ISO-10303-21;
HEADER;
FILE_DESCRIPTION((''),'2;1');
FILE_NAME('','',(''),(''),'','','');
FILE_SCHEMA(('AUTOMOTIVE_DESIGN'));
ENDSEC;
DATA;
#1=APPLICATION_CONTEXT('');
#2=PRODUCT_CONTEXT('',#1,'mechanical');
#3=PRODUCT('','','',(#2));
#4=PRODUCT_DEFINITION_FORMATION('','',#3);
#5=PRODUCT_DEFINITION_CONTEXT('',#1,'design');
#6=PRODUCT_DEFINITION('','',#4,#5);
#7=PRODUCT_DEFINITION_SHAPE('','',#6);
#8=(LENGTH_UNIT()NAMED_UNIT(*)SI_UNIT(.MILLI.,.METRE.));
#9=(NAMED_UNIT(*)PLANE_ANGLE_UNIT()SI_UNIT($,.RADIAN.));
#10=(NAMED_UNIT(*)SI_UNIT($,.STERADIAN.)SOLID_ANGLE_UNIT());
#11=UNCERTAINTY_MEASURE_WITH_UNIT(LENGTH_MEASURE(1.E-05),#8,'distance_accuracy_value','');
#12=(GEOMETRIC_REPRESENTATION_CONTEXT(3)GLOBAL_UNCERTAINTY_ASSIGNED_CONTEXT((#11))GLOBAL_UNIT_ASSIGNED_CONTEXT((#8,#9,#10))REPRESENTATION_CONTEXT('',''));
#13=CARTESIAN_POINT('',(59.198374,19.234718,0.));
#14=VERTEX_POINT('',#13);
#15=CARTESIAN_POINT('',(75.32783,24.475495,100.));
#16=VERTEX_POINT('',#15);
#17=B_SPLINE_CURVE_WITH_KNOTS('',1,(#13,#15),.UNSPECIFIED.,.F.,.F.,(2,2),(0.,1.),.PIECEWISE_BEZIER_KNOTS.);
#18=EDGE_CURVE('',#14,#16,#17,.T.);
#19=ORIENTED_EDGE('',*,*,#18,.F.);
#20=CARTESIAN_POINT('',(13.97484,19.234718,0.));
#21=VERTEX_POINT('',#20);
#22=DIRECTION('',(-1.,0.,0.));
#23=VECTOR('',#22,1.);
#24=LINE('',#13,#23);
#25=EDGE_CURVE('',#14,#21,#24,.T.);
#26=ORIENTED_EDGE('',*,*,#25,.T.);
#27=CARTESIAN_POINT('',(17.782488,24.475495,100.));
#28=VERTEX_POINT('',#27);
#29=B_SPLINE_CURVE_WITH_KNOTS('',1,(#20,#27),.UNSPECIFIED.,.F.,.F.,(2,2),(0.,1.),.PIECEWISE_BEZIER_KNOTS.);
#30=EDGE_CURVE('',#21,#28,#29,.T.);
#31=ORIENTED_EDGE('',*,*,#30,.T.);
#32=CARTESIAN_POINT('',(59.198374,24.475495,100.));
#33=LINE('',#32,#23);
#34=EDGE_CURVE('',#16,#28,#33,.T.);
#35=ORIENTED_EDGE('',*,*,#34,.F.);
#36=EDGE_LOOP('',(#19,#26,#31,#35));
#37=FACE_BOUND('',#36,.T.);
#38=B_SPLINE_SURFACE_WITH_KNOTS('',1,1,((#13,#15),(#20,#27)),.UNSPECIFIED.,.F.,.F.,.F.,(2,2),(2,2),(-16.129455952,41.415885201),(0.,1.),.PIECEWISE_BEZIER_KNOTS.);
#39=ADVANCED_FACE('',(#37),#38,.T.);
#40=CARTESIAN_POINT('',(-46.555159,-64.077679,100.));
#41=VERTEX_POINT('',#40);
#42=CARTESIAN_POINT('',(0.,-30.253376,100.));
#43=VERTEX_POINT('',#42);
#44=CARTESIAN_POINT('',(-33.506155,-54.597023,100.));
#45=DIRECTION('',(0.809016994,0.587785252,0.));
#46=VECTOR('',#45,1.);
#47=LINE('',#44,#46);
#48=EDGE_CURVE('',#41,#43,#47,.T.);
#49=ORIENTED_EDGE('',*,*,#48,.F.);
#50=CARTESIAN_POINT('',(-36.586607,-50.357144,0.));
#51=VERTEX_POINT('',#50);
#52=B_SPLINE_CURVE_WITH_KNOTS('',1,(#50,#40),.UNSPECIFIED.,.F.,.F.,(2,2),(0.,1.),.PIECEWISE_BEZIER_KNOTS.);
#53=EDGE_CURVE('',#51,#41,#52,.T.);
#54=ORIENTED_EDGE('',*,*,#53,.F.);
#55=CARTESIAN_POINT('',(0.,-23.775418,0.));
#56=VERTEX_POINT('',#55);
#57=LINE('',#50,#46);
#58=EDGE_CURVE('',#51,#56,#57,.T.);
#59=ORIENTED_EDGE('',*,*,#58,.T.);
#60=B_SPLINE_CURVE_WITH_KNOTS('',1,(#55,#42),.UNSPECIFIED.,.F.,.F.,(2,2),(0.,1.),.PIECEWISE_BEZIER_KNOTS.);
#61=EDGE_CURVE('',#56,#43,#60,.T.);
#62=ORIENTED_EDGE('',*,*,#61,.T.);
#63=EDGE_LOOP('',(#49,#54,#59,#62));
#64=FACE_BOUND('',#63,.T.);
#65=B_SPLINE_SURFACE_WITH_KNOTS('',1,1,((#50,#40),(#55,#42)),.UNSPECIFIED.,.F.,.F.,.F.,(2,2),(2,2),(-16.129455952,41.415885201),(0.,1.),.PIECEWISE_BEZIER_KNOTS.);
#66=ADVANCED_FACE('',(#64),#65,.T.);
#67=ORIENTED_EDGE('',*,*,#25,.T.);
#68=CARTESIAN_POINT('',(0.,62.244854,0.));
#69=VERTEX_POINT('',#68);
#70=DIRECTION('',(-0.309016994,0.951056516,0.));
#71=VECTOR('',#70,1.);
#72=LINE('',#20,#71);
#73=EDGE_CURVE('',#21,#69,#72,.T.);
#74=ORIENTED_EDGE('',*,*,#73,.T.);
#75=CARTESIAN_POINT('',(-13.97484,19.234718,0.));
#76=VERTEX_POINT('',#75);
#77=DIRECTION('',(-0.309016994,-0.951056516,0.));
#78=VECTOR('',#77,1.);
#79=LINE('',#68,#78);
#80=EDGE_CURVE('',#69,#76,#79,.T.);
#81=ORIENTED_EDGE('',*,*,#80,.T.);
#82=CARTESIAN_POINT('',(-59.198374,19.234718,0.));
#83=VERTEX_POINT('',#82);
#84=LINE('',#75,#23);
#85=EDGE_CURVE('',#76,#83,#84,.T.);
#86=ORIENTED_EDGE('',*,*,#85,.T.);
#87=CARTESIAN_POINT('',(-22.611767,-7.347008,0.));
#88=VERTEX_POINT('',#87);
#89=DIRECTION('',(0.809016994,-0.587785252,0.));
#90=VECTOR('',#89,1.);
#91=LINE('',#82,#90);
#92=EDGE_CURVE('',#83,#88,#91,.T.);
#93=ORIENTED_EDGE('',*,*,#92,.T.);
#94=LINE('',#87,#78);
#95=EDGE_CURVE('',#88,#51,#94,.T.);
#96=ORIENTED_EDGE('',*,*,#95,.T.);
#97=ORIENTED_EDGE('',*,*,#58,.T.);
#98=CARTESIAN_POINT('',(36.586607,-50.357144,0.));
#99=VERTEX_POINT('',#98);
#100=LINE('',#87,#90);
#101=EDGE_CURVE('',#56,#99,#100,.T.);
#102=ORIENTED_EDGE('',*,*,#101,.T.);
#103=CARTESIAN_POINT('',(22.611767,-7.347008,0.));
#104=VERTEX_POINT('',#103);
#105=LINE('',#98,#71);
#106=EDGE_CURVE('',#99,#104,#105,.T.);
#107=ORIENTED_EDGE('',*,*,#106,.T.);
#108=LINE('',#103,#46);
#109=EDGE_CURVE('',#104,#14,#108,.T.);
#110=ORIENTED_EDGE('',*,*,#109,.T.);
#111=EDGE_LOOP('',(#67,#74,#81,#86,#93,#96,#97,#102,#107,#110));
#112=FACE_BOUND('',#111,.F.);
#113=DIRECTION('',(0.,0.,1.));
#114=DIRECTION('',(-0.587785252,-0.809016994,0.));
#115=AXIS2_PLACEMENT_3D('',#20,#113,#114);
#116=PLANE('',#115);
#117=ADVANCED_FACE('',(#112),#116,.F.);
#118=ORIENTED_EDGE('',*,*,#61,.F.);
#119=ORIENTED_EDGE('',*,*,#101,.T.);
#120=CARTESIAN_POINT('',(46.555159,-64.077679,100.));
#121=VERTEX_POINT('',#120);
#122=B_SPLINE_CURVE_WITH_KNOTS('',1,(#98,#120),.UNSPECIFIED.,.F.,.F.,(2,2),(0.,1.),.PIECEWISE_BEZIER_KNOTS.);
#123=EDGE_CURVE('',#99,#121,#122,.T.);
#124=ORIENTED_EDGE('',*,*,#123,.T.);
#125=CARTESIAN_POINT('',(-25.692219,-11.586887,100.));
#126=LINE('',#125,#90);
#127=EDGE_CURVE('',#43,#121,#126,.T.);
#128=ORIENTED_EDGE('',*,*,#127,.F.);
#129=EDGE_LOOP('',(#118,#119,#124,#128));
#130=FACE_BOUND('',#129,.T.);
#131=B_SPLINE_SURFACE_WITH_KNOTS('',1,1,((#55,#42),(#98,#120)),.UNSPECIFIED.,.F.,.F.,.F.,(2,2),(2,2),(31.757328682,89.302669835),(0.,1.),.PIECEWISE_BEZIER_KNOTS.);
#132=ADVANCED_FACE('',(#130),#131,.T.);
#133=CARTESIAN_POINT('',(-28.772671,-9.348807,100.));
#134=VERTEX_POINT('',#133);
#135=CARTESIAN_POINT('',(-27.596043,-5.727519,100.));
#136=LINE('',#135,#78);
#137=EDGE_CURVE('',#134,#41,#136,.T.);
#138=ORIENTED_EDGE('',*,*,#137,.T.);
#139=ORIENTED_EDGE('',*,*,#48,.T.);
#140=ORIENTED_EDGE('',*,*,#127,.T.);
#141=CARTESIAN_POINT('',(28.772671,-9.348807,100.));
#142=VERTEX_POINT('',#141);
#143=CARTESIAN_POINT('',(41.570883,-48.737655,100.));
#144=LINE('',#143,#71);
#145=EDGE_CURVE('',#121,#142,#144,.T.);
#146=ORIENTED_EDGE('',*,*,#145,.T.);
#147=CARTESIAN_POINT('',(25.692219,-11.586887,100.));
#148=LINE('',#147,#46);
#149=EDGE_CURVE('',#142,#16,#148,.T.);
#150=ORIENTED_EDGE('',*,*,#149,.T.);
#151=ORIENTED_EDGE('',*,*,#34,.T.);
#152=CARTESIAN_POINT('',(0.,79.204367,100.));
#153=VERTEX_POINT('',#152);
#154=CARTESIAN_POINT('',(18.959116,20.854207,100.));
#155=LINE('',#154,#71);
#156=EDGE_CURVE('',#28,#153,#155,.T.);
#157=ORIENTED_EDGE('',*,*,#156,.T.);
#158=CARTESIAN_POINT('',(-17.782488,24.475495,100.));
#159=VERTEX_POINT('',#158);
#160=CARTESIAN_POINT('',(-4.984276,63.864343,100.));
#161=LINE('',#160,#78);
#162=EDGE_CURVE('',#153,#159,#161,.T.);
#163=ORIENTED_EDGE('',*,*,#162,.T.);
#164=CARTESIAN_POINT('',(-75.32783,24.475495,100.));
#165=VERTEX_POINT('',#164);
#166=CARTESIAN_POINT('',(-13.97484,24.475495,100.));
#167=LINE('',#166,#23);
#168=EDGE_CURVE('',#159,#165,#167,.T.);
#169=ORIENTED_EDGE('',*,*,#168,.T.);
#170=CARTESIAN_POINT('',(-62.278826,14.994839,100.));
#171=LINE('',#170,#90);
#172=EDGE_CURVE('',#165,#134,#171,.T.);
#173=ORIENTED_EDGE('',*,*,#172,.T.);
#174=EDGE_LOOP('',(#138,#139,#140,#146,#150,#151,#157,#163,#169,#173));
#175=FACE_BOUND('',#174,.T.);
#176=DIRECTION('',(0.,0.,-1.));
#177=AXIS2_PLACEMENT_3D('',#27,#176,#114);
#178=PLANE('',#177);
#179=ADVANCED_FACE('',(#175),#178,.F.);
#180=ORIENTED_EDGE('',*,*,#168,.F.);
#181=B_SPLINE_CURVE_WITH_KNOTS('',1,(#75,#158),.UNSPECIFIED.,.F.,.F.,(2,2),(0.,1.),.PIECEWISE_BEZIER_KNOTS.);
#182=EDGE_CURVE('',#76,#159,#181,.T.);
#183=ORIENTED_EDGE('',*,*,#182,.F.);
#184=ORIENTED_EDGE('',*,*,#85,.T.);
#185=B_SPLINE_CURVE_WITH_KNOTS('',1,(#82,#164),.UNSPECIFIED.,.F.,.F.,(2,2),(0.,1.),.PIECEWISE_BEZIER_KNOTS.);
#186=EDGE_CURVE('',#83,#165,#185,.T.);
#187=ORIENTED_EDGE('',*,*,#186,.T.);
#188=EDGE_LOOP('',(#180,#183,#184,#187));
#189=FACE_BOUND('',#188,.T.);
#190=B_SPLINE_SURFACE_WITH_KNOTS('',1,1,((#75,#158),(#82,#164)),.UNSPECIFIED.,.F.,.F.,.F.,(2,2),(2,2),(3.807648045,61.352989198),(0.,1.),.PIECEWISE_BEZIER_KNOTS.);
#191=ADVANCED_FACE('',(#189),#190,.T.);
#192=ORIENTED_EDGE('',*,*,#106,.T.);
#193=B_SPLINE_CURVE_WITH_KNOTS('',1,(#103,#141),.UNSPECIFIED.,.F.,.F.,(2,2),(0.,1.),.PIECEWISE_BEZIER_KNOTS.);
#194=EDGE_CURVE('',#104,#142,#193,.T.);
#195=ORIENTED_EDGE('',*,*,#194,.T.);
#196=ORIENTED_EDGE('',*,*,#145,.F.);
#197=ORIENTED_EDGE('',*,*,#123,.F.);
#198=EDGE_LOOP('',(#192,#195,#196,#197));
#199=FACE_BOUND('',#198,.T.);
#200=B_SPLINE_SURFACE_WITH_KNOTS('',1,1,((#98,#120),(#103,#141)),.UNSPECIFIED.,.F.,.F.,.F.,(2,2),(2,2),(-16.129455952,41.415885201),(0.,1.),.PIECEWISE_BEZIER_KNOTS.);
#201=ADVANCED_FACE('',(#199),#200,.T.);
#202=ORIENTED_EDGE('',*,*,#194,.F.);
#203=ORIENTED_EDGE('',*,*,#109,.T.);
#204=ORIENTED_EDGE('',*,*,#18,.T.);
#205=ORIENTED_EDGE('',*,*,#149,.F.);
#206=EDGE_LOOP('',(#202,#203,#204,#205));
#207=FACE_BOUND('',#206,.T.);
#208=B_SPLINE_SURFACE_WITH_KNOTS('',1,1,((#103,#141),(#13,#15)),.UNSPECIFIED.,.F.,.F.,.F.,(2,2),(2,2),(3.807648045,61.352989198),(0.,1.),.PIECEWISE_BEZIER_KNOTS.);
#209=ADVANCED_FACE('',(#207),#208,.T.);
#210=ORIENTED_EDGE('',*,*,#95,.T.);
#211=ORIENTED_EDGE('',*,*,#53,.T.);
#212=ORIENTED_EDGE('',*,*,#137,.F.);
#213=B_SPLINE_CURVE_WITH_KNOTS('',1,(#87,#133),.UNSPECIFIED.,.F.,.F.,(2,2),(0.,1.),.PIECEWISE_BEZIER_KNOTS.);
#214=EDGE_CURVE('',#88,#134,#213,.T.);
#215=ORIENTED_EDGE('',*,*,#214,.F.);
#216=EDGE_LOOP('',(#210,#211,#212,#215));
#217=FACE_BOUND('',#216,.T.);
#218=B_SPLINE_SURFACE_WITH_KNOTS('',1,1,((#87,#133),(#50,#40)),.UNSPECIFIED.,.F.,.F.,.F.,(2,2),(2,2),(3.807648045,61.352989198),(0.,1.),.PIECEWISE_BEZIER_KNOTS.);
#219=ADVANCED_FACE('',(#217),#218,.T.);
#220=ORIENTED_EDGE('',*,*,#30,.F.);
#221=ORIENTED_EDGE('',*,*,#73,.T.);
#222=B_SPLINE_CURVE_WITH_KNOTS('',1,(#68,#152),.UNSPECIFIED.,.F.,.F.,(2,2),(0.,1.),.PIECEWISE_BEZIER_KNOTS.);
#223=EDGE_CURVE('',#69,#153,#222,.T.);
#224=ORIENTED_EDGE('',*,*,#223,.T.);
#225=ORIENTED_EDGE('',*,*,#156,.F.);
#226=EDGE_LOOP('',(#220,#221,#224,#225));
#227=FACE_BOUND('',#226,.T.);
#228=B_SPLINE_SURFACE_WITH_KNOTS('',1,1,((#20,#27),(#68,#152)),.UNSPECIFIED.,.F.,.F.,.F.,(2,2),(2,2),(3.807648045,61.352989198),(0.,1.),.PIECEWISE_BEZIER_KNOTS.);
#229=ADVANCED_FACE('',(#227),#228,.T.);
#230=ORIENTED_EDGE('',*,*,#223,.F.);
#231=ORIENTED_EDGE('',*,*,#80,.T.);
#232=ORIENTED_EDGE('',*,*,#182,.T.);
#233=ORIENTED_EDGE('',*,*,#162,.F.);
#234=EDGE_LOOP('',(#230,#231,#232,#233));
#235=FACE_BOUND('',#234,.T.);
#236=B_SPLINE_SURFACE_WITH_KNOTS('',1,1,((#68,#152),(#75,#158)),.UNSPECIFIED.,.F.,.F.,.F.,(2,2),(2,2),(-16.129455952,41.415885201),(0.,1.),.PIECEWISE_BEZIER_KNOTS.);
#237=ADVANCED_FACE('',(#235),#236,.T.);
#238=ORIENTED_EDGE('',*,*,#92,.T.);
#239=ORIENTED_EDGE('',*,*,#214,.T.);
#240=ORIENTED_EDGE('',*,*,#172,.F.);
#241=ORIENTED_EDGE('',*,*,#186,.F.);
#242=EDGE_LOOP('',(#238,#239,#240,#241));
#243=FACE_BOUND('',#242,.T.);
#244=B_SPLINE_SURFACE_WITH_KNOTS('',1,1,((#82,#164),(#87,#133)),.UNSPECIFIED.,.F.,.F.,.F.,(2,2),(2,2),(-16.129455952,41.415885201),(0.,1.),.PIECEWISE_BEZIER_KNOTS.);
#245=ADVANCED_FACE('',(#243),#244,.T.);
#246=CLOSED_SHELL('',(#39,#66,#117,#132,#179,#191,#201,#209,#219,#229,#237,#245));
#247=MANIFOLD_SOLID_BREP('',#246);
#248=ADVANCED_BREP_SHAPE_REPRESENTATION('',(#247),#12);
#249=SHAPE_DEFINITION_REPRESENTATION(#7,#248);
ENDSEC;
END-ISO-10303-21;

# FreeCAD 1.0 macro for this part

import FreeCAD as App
import Part
import Sketcher
Q = App.Units.Quantity

doc = App.newDocument("Part")
body = doc.addObject("PartDesign::Body", "Body")

sketch1 = body.newObject("Sketcher::SketchObject", "Sketch")
sketch1.AttachmentSupport = (doc.getObject("XY_Plane"), [""])
sketch1.MapMode = "FlatFace"
sketch1.addGeometry(Part.LineSegment(App.Vector(13.97484, 19.234718, 0), App.Vector(0, 62.244854, 0)), False)
sketch1.addGeometry(Part.LineSegment(App.Vector(0, 62.244854, 0), App.Vector(-13.97484, 19.234718, 0)), False)
sketch1.addGeometry(Part.LineSegment(App.Vector(-13.97484, 19.234718, 0), App.Vector(-59.198374, 19.234718, 0)), False)
sketch1.addGeometry(Part.LineSegment(App.Vector(-59.198374, 19.234718, 0), App.Vector(-22.611767, -7.347008, 0)), False)
sketch1.addGeometry(Part.LineSegment(App.Vector(-22.611767, -7.347008, 0), App.Vector(-36.586607, -50.357144, 0)), False)
sketch1.addGeometry(Part.LineSegment(App.Vector(-36.586607, -50.357144, 0), App.Vector(0, -23.775418, 0)), False)
sketch1.addGeometry(Part.LineSegment(App.Vector(0, -23.775418, 0), App.Vector(36.586607, -50.357144, 0)), False)
sketch1.addGeometry(Part.LineSegment(App.Vector(36.586607, -50.357144, 0), App.Vector(22.611767, -7.347008, 0)), False)
sketch1.addGeometry(Part.LineSegment(App.Vector(22.611767, -7.347008, 0), App.Vector(59.198374, 19.234718, 0)), False)
sketch1.addGeometry(Part.LineSegment(App.Vector(59.198374, 19.234718, 0), App.Vector(13.97484, 19.234718, 0)), False)
sketch1.addConstraint(Sketcher.Constraint("Coincident", 0, 2, 1, 1))
sketch1.addConstraint(Sketcher.Constraint("Coincident", 1, 2, 2, 1))
sketch1.addConstraint(Sketcher.Constraint("Coincident", 2, 2, 3, 1))
sketch1.addConstraint(Sketcher.Constraint("Coincident", 3, 2, 4, 1))
sketch1.addConstraint(Sketcher.Constraint("Coincident", 4, 2, 5, 1))
sketch1.addConstraint(Sketcher.Constraint("Coincident", 5, 2, 6, 1))
sketch1.addConstraint(Sketcher.Constraint("Coincident", 6, 2, 7, 1))
sketch1.addConstraint(Sketcher.Constraint("Coincident", 7, 2, 8, 1))
sketch1.addConstraint(Sketcher.Constraint("Coincident", 8, 2, 9, 1))
sketch1.addConstraint(Sketcher.Constraint("Coincident", 9, 2, 0, 1))
sketch1.addConstraint(Sketcher.Constraint("Horizontal", 2))
sketch1.addConstraint(Sketcher.Constraint("Horizontal", 9))
sketch1.addConstraint(Sketcher.Constraint("Symmetric", 4, 2, 6, 2, -2))
sketch1.addConstraint(Sketcher.Constraint("Symmetric", 3, 2, 7, 2, -2))
sketch1.addConstraint(Sketcher.Constraint("Symmetric", 2, 2, 8, 2, -2))
sketch1.addConstraint(Sketcher.Constraint("PointOnObject", 0, 2, -2))
sketch1.addConstraint(Sketcher.Constraint("PointOnObject", 5, 2, -2))
sketch1.addConstraint(Sketcher.Constraint("Parallel", 1, 4))
sketch1.addConstraint(Sketcher.Constraint("Parallel", 3, 6))
sketch1.addConstraint(Sketcher.Constraint("Parallel", 0, 7))
sketch1.addConstraint(Sketcher.Constraint("Equal", 1, 3))
sketch1.addConstraint(Sketcher.Constraint("Equal", 3, 4))
sketch1.addConstraint(Sketcher.Constraint("Equal", 4, 5))
sketch1.addConstraint(Sketcher.Constraint("Angle", 0, Q("108 deg")))
sketch1.addConstraint(Sketcher.Constraint("Angle", 3, Q("-36 deg")))
sketch1.addConstraint(Sketcher.Constraint("DistanceX", 2, 2, 2, 1, Q("45.223533 mm")))
sketch1.addConstraint(Sketcher.Constraint("DistanceY", 3, 2, -1, 1, Q("7.347008 mm")))
pad1 = body.newObject("PartDesign::Pad", "Pad")
pad1.Profile = sketch1
pad1.Length = 100
pad1.TaperAngle = 3

doc.recompute()
